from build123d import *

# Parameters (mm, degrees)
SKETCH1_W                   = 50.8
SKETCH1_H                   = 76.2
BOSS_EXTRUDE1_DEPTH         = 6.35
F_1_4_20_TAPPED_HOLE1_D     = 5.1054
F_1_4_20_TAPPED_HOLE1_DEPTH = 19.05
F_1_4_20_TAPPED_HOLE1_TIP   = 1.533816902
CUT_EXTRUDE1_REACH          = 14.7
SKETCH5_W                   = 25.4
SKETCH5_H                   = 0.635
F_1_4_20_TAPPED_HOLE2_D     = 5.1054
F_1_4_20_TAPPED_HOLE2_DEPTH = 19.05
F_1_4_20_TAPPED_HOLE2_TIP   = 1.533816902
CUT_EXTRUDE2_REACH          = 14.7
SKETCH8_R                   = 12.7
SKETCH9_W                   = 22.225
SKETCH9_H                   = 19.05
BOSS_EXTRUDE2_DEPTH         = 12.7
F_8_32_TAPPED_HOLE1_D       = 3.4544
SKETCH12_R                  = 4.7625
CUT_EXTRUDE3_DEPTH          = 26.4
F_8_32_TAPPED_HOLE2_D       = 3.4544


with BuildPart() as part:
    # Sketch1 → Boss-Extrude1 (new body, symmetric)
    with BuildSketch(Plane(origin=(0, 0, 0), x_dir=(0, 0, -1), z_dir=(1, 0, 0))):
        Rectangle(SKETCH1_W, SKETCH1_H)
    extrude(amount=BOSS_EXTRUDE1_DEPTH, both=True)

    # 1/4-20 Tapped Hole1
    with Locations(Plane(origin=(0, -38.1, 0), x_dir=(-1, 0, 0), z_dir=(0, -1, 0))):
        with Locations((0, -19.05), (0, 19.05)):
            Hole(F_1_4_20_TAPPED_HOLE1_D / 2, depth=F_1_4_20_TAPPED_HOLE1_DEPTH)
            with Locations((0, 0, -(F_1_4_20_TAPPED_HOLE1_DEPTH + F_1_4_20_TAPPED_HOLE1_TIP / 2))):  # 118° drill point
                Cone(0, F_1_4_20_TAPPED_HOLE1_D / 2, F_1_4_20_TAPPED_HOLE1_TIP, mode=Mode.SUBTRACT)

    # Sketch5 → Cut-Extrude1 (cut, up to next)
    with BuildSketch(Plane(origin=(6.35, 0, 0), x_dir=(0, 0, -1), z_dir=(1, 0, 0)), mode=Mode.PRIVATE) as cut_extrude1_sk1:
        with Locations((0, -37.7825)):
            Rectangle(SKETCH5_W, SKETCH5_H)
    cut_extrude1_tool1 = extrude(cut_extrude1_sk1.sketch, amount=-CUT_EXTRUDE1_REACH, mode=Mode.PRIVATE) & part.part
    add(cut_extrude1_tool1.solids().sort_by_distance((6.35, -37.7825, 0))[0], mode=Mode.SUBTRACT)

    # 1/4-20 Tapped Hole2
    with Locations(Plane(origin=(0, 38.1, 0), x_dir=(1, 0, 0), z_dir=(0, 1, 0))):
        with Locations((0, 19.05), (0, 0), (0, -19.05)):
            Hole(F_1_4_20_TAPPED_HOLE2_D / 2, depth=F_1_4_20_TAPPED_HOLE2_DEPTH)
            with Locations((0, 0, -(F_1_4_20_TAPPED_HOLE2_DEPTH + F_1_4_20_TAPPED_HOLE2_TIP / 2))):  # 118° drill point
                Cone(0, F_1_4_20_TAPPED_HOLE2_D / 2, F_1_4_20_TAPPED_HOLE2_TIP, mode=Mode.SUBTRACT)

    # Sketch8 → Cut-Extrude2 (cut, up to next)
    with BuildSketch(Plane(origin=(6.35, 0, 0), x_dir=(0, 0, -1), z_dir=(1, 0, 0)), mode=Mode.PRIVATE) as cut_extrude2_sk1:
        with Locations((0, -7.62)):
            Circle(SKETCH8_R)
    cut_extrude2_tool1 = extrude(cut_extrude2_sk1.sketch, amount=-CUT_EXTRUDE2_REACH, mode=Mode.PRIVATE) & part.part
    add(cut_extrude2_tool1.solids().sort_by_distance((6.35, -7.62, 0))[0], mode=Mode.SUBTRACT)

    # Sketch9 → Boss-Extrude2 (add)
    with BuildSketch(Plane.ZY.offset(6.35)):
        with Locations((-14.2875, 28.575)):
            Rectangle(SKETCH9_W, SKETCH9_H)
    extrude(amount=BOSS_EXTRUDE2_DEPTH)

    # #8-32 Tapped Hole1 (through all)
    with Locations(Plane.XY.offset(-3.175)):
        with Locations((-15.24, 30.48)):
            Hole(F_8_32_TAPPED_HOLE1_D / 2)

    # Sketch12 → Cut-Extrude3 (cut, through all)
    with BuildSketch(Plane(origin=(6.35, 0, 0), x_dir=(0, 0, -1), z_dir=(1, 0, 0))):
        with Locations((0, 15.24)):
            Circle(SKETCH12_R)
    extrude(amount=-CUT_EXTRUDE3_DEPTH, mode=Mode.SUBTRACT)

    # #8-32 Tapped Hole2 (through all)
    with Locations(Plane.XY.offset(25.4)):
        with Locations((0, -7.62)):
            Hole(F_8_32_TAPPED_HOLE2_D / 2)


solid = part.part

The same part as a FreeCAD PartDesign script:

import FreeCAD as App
import Part
import Sketcher
Q = App.Units.Quantity

doc = App.newDocument("Part")
body = doc.addObject("PartDesign::Body", "Body")

# Sketch on YZ plane
sketch1 = doc.addObject("Sketcher::SketchObject", "Sketch")
body.addObject(sketch1)
sketch1.AttachmentSupport = (doc.YZ_Plane, [""])
sketch1.MapMode = "FlatFace"
sketch1.addGeometry(Part.LineSegment(App.Vector(38.1, 25.4, 0), App.Vector(-38.1, 25.4, 0)), False)
sketch1.addGeometry(Part.LineSegment(App.Vector(-38.1, 25.4, 0), App.Vector(-38.1, -25.4, 0)), False)
sketch1.addGeometry(Part.LineSegment(App.Vector(-38.1, -25.4, 0), App.Vector(38.1, -25.4, 0)), False)
sketch1.addGeometry(Part.LineSegment(App.Vector(38.1, -25.4, 0), App.Vector(38.1, 25.4, 0)), False)
sketch1.addConstraint(Sketcher.Constraint("Coincident", 0, 2, 1, 1))
sketch1.addConstraint(Sketcher.Constraint("Coincident", 1, 2, 2, 1))
sketch1.addConstraint(Sketcher.Constraint("Coincident", 2, 2, 3, 1))
sketch1.addConstraint(Sketcher.Constraint("Coincident", 3, 2, 0, 1))
sketch1.addConstraint(Sketcher.Constraint("Horizontal", 0))
sketch1.addConstraint(Sketcher.Constraint("Vertical", 1))
sketch1.addConstraint(Sketcher.Constraint("Horizontal", 2))
sketch1.addConstraint(Sketcher.Constraint("Vertical", 3))
sketch1.addConstraint(Sketcher.Constraint("Symmetric", 0, 2, 2, 2, -1, 1))
sketch1.addConstraint(Sketcher.Constraint("DistanceX", 0, 2, 0, 1, Q("3 in")))
sketch1.addConstraint(Sketcher.Constraint("DistanceY", 1, 2, 1, 1, Q("2 in")))
pad1 = doc.addObject("PartDesign::Pad", "Pad")
body.addObject(pad1)
pad1.Profile = sketch1
pad1.Length = Q("0.5 in")
pad1.Midplane = True

# Sketch on XZ plane
sketch2 = doc.addObject("Sketcher::SketchObject", "Sketch001")
body.addObject(sketch2)
sketch2.AttachmentSupport = (doc.XZ_Plane, [""])
sketch2.MapMode = "FlatFace"
sketch2.AttachmentOffset = App.Placement(App.Vector(0, 0, 1.5 * 25.4), App.Rotation())
sketch2.addGeometry(Part.Circle(App.Vector(0, 19.05, 0), App.Vector(0, 0, 1), 2.5527), False)
sketch2.addGeometry(Part.Circle(App.Vector(0, -19.05, 0), App.Vector(0, 0, 1), 2.5527), False)
sketch2.addConstraint(Sketcher.Constraint("Equal", 0, 1))
sketch2.addConstraint(Sketcher.Constraint("Symmetric", 0, 3, 1, 3, -1, 1))
sketch2.addConstraint(Sketcher.Constraint("PointOnObject", 0, 3, -2))
sketch2.addConstraint(Sketcher.Constraint("Diameter", 0, Q("0.201 in")))
sketch2.addConstraint(Sketcher.Constraint("DistanceY", 1, 3, 0, 3, Q("1.5 in")))
doc.recompute()
hole = doc.addObject("PartDesign::Hole", "Hole")
body.addObject(hole)
hole.Profile = sketch2
hole.ThreadType = "None"
hole.Diameter = Q("0.201 in")
hole.DepthType = "Dimension"
hole.Depth = Q("0.75 in")
hole.DrillPoint = "Angled"
hole.DrillPointAngle = 118

# Sketch on YZ plane
sketch3 = doc.addObject("Sketcher::SketchObject", "Sketch002")
body.addObject(sketch3)
sketch3.AttachmentSupport = (doc.YZ_Plane, [""])
sketch3.MapMode = "FlatFace"
sketch3.AttachmentOffset = App.Placement(App.Vector(0, 0, 0.25 * 25.4), App.Rotation())
sketch3.addGeometry(Part.LineSegment(App.Vector(-37.465, 12.7, 0), App.Vector(-38.1, 12.7, 0)), False)
sketch3.addGeometry(Part.LineSegment(App.Vector(-38.1, 12.7, 0), App.Vector(-38.1, -12.7, 0)), False)
sketch3.addGeometry(Part.LineSegment(App.Vector(-38.1, -12.7, 0), App.Vector(-37.465, -12.7, 0)), False)
sketch3.addGeometry(Part.LineSegment(App.Vector(-37.465, -12.7, 0), App.Vector(-37.465, 12.7, 0)), False)
sketch3.addConstraint(Sketcher.Constraint("Coincident", 0, 2, 1, 1))
sketch3.addConstraint(Sketcher.Constraint("Coincident", 1, 2, 2, 1))
sketch3.addConstraint(Sketcher.Constraint("Coincident", 2, 2, 3, 1))
sketch3.addConstraint(Sketcher.Constraint("Coincident", 3, 2, 0, 1))
sketch3.addConstraint(Sketcher.Constraint("Horizontal", 0))
sketch3.addConstraint(Sketcher.Constraint("Vertical", 1))
sketch3.addConstraint(Sketcher.Constraint("Horizontal", 2))
sketch3.addConstraint(Sketcher.Constraint("Vertical", 3))
sketch3.addConstraint(Sketcher.Constraint("DistanceY", 1, 2, 1, 1, Q("1 in")))
sketch3.addConstraint(Sketcher.Constraint("DistanceX", 0, 2, -1, 1, Q("1.5 in")))
sketch3.addConstraint(Sketcher.Constraint("DistanceY", -1, 1, 0, 2, Q("0.5 in")))
sketch3.addConstraint(Sketcher.Constraint("DistanceX", 0, 2, 0, 1, Q("0.025 in")))
pocket1 = doc.addObject("PartDesign::Pocket", "Pocket")
body.addObject(pocket1)
pocket1.Profile = sketch3
pocket1.Type = "UpToFirst"

# Sketch on XZ plane
sketch4 = doc.addObject("Sketcher::SketchObject", "Sketch003")
body.addObject(sketch4)
sketch4.AttachmentSupport = (doc.XZ_Plane, [""])
sketch4.MapMode = "FlatFace"
sketch4.AttachmentOffset = App.Placement(App.Vector(0, 0, -1.5 * 25.4), App.Rotation())
sketch4.addGeometry(Part.Circle(App.Vector(0, -19.05, 0), App.Vector(0, 0, 1), 2.5527), False)
sketch4.addGeometry(Part.Circle(App.Vector(0, 0, 0), App.Vector(0, 0, 1), 2.5527), False)
sketch4.addGeometry(Part.Circle(App.Vector(0, 19.05, 0), App.Vector(0, 0, 1), 2.5527), False)
sketch4.addConstraint(Sketcher.Constraint("Coincident", 1, 3, -1, 1))
sketch4.addConstraint(Sketcher.Constraint("Equal", 0, 1))
sketch4.addConstraint(Sketcher.Constraint("Equal", 1, 2))
sketch4.addConstraint(Sketcher.Constraint("Symmetric", 0, 3, 2, 3, -1, 1))
sketch4.addConstraint(Sketcher.Constraint("PointOnObject", 0, 3, -2))
sketch4.addConstraint(Sketcher.Constraint("Diameter", 0, Q("0.201 in")))
sketch4.addConstraint(Sketcher.Constraint("DistanceY", 0, 3, 2, 3, Q("1.5 in")))
doc.recompute()
hole2 = doc.addObject("PartDesign::Hole", "Hole001")
body.addObject(hole2)
hole2.Profile = sketch4
hole2.ThreadType = "None"
hole2.Diameter = Q("0.201 in")
hole2.DepthType = "Dimension"
hole2.Depth = Q("0.75 in")
hole2.DrillPoint = "Angled"
hole2.DrillPointAngle = 118
hole2.Reversed = True

# Sketch on YZ plane
sketch5 = doc.addObject("Sketcher::SketchObject", "Sketch004")
body.addObject(sketch5)
sketch5.AttachmentSupport = (doc.YZ_Plane, [""])
sketch5.MapMode = "FlatFace"
sketch5.AttachmentOffset = App.Placement(App.Vector(0, 0, 0.25 * 25.4), App.Rotation())
sketch5.addGeometry(Part.Circle(App.Vector(-7.62, 0, 0), App.Vector(0, 0, 1), 12.7), False)
sketch5.addConstraint(Sketcher.Constraint("PointOnObject", 0, 3, -1))
sketch5.addConstraint(Sketcher.Constraint("Diameter", 0, Q("1 in")))
sketch5.addConstraint(Sketcher.Constraint("DistanceX", 0, 3, -1, 1, Q("0.3 in")))
pocket2 = doc.addObject("PartDesign::Pocket", "Pocket001")
body.addObject(pocket2)
pocket2.Profile = sketch5
pocket2.Type = "UpToFirst"

# Sketch on YZ plane
sketch6 = doc.addObject("Sketcher::SketchObject", "Sketch005")
body.addObject(sketch6)
sketch6.AttachmentSupport = (doc.YZ_Plane, [""])
sketch6.MapMode = "FlatFace"
sketch6.AttachmentOffset = App.Placement(App.Vector(0, 0, -0.25 * 25.4), App.Rotation())
sketch6.addGeometry(Part.LineSegment(App.Vector(38.1, -25.4, 0), App.Vector(19.05, -25.4, 0)), False)
sketch6.addGeometry(Part.LineSegment(App.Vector(19.05, -25.4, 0), App.Vector(19.05, -3.175, 0)), False)
sketch6.addGeometry(Part.LineSegment(App.Vector(19.05, -3.175, 0), App.Vector(38.1, -3.175, 0)), False)
sketch6.addGeometry(Part.LineSegment(App.Vector(38.1, -3.175, 0), App.Vector(38.1, -25.4, 0)), False)
sketch6.addConstraint(Sketcher.Constraint("Coincident", 0, 2, 1, 1))
sketch6.addConstraint(Sketcher.Constraint("Coincident", 1, 2, 2, 1))
sketch6.addConstraint(Sketcher.Constraint("Coincident", 2, 2, 3, 1))
sketch6.addConstraint(Sketcher.Constraint("Coincident", 3, 2, 0, 1))
sketch6.addConstraint(Sketcher.Constraint("Horizontal", 0))
sketch6.addConstraint(Sketcher.Constraint("Vertical", 1))
sketch6.addConstraint(Sketcher.Constraint("Horizontal", 2))
sketch6.addConstraint(Sketcher.Constraint("Vertical", 3))
sketch6.addConstraint(Sketcher.Constraint("DistanceY", 0, 2, -1, 1, Q("1 in")))
sketch6.addConstraint(Sketcher.Constraint("DistanceX", 0, 2, 0, 1, Q("0.75 in")))
sketch6.addConstraint(Sketcher.Constraint("DistanceX", -1, 1, 2, 2, Q("1.5 in")))
sketch6.addConstraint(Sketcher.Constraint("DistanceY", 1, 1, 1, 2, Q("0.875 in")))
pad2 = doc.addObject("PartDesign::Pad", "Pad001")
body.addObject(pad2)
pad2.Profile = sketch6
pad2.Length = Q("0.5 in")
pad2.Reversed = True

# Sketch on XY plane
sketch7 = doc.addObject("Sketcher::SketchObject", "Sketch006")
body.addObject(sketch7)
sketch7.AttachmentSupport = (doc.XY_Plane, [""])
sketch7.MapMode = "FlatFace"
sketch7.AttachmentOffset = App.Placement(App.Vector(0, 0, -0.125 * 25.4), App.Rotation())
sketch7.addGeometry(Part.Circle(App.Vector(-15.24, 30.48, 0), App.Vector(0, 0, 1), 1.7272), False)
sketch7.addConstraint(Sketcher.Constraint("Diameter", 0, Q("0.136 in")))
sketch7.addConstraint(Sketcher.Constraint("DistanceX", 0, 3, -1, 1, Q("0.6 in")))
sketch7.addConstraint(Sketcher.Constraint("DistanceY", -1, 1, 0, 3, Q("1.2 in")))
doc.recompute()
hole3 = doc.addObject("PartDesign::Hole", "Hole002")
body.addObject(hole3)
hole3.Profile = sketch7
hole3.ThreadType = "None"
hole3.Diameter = Q("0.136 in")
hole3.DepthType = "ThroughAll"

# Sketch on YZ plane
sketch8 = doc.addObject("Sketcher::SketchObject", "Sketch007")
body.addObject(sketch8)
sketch8.AttachmentSupport = (doc.YZ_Plane, [""])
sketch8.MapMode = "FlatFace"
sketch8.AttachmentOffset = App.Placement(App.Vector(0, 0, 0.25 * 25.4), App.Rotation())
sketch8.addGeometry(Part.Circle(App.Vector(15.24, 0, 0), App.Vector(0, 0, 1), 4.7625), False)
sketch8.addConstraint(Sketcher.Constraint("PointOnObject", 0, 3, -1))
sketch8.addConstraint(Sketcher.Constraint("Diameter", 0, Q("0.375 in")))
sketch8.addConstraint(Sketcher.Constraint("DistanceX", -1, 1, 0, 3, Q("0.6 in")))
pocket3 = doc.addObject("PartDesign::Pocket", "Pocket002")
body.addObject(pocket3)
pocket3.Profile = sketch8
pocket3.Type = "ThroughAll"

# Sketch on XY plane
sketch9 = doc.addObject("Sketcher::SketchObject", "Sketch008")
body.addObject(sketch9)
sketch9.AttachmentSupport = (doc.XY_Plane, [""])
sketch9.MapMode = "FlatFace"
sketch9.AttachmentOffset = App.Placement(App.Vector(0, 0, 1 * 25.4), App.Rotation())
sketch9.addGeometry(Part.Circle(App.Vector(0, -7.62, 0), App.Vector(0, 0, 1), 1.7272), False)
sketch9.addConstraint(Sketcher.Constraint("PointOnObject", 0, 3, -2))
sketch9.addConstraint(Sketcher.Constraint("Diameter", 0, Q("0.136 in")))
sketch9.addConstraint(Sketcher.Constraint("DistanceY", 0, 3, -1, 1, Q("0.3 in")))
doc.recompute()
hole4 = doc.addObject("PartDesign::Hole", "Hole003")
body.addObject(hole4)
hole4.Profile = sketch9
hole4.ThreadType = "None"
hole4.Diameter = Q("0.136 in")
hole4.DepthType = "ThroughAll"

doc.recompute()
